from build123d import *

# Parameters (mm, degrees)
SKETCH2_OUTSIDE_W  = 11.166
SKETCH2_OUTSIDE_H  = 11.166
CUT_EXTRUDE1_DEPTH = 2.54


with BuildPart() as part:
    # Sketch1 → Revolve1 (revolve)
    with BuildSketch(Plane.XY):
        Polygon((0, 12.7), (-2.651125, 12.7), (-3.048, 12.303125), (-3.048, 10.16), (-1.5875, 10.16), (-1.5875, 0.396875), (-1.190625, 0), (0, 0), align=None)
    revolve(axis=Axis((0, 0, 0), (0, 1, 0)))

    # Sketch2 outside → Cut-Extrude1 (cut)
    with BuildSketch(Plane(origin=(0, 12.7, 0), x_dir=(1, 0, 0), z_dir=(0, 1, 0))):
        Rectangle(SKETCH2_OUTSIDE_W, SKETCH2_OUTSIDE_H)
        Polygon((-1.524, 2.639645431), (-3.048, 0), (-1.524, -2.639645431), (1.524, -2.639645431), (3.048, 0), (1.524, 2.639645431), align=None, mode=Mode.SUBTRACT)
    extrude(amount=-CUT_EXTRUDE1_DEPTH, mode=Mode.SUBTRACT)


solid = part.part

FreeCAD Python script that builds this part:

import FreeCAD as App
import Part
import Sketcher

V = App.Vector
Q = App.Units.Quantity


def add_polygon(sketch, points):
    """Adds a closed chain of lines whose ends are joined by coincident constraints."""
    first, n = sketch.GeometryCount, len(points)
    for a, b in zip(points, points[1:] + points[:1]):
        sketch.addGeometry(Part.LineSegment(App.Vector(*a, 0), App.Vector(*b, 0)), False)
    for i in range(n):
        sketch.addConstraint(Sketcher.Constraint("Coincident", first + i, 2, first + (i + 1) % n, 1))

doc = App.newDocument("Part")
body = doc.addObject("PartDesign::Body", "Body")

# Sketch on XY plane
sketch1 = body.newObject("Sketcher::SketchObject", "Sketch")
sketch1.AttachmentSupport = (doc.getObject("XY_Plane"), [""])
sketch1.MapMode = "FlatFace"
add_polygon(sketch1, [(0, 12.7), (-2.7, 12.7), (-3, 12.3), (-3, 10.2), (-1.6, 10.2), (-1.6, 0.4), (-1.2, 0), (0, 0)])  # lines 0-7
sketch1.addConstraint([
    Sketcher.Constraint("Horizontal", 0),
    Sketcher.Constraint("Vertical", 2),
    Sketcher.Constraint("Horizontal", 3),
    Sketcher.Constraint("Vertical", 4),
    Sketcher.Constraint("Horizontal", 6),
    Sketcher.Constraint("Vertical", 7),
    Sketcher.Constraint("Coincident", 6, 2, -1, 1),
    Sketcher.Constraint("Perpendicular", 1, 5),
    Sketcher.Constraint("Equal", 1, 5),
    Sketcher.Constraint("DistanceY", 7, 1, 7, 2, Q("0.5 in")),
    Sketcher.Constraint("Angle", 1, Q("-135 deg")),
    Sketcher.Constraint("DistanceY", -1, 1, 2, 2, Q("0.4 in")),
    Sketcher.Constraint("DistanceX", 6, 1, 6, 2, Q("0.046875 in")),
    Sketcher.Constraint("DistanceX", 1, 2, -1, 1, Q("0.12 in")),
    Sketcher.Constraint("DistanceX", 3, 1, 3, 2, Q("0.0575 in")),
])
revolution = body.newObject("PartDesign::Revolution", "Revolution")
revolution.Profile = sketch1
revolution.ReferenceAxis = (sketch1, ["V_Axis"])
revolution.Angle = 360

# Sketch on XZ plane
sketch2 = body.newObject("Sketcher::SketchObject", "Sketch001")
sketch2.AttachmentSupport = (doc.getObject("XZ_Plane"), [""])
sketch2.MapMode = "FlatFace"
sketch2.AttachmentOffset = App.Placement(V(0, 0, -0.5 * 25.4), App.Rotation())
add_polygon(sketch2, [(-5.6, -5.6), (-5.6, 5.6), (5.6, 5.6), (5.6, -5.6)])  # lines 0-3
add_polygon(sketch2, [(-3, 0), (-1.5, -2.6), (1.5, -2.6), (3, 0), (1.5, 2.6), (-1.5, 2.6)])  # lines 4-9
sketch2.addConstraint([
    Sketcher.Constraint("Vertical", 0),
    Sketcher.Constraint("Horizontal", 1),
    Sketcher.Constraint("Vertical", 2),
    Sketcher.Constraint("Horizontal", 3),
    Sketcher.Constraint("Horizontal", 5),
    Sketcher.Constraint("Horizontal", 8),
    Sketcher.Constraint("Symmetric", 0, 2, 2, 2, -1, 1),
    Sketcher.Constraint("Symmetric", 4, 2, 7, 2, -1, 1),
    Sketcher.Constraint("Symmetric", 6, 2, 9, 2, -1, 1),
    Sketcher.Constraint("PointOnObject", 6, 2, -1),
    Sketcher.Constraint("Parallel", 6, 9),
    Sketcher.Constraint("Vertical", 5, 2, 7, 2),
    Sketcher.Constraint("Equal", 3, 0),
    Sketcher.Constraint("Angle", 4, Q("-60 deg")),
    Sketcher.Constraint("DistanceX", 5, 1, 5, 2, Q("0.12 in")),
    Sketcher.Constraint("Distance", 4, Q("0.12 in")),
    Sketcher.Constraint("DistanceX", 1, 1, 1, 2, Q("11.166 mm")),
])
pocket1 = body.newObject("PartDesign::Pocket", "Pocket")
pocket1.Profile = sketch2
pocket1.Length = Q("0.1 in")
pocket1.Reversed = True

doc.recompute()
